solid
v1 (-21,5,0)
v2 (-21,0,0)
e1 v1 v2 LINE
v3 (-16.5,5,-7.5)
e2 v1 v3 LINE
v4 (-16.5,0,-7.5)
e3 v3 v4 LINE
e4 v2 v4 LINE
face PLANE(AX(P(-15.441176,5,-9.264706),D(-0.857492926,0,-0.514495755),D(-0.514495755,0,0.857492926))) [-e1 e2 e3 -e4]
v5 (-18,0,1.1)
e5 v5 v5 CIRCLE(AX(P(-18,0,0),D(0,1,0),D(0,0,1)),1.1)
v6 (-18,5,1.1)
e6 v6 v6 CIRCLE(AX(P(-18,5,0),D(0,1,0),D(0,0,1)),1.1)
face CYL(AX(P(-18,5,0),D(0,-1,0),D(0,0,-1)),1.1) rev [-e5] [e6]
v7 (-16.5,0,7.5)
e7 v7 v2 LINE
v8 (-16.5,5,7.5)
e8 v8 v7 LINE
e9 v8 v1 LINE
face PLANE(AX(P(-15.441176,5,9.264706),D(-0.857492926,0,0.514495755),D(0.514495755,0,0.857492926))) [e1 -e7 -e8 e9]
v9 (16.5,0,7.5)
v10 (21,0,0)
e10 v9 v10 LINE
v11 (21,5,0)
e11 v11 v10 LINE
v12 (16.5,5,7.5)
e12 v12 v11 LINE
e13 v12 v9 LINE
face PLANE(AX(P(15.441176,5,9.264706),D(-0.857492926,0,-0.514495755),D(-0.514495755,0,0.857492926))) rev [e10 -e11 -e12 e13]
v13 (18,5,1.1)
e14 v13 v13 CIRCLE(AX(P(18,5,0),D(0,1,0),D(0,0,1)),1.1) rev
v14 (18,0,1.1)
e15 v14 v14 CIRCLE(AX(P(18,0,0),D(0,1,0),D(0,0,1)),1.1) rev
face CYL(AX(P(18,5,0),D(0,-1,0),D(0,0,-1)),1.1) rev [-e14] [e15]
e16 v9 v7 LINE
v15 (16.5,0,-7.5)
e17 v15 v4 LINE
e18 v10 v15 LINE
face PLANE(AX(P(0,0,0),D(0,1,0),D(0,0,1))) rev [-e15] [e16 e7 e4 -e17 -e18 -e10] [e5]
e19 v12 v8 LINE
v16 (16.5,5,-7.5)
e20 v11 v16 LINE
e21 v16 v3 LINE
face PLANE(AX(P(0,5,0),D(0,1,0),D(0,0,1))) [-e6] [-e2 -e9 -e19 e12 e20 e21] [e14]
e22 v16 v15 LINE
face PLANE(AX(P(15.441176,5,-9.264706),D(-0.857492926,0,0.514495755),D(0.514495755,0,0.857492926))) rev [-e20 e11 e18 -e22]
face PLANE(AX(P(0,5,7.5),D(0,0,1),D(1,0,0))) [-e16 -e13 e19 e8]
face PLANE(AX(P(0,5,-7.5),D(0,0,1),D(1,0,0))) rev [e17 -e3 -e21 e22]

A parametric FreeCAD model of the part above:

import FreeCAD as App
import Part
import Sketcher


def add_polygon(sketch, points):
    """Adds a closed chain of lines whose ends are joined by coincident constraints."""
    first, n = sketch.GeometryCount, len(points)
    for a, b in zip(points, points[1:] + points[:1]):
        sketch.addGeometry(Part.LineSegment(App.Vector(*a, 0), App.Vector(*b, 0)), False)
    for i in range(n):
        sketch.addConstraint(Sketcher.Constraint("Coincident", first + i, 2, first + (i + 1) % n, 1))

doc = App.newDocument("Part")
params = doc.addObject("Spreadsheet::Sheet", "Params")
for row, (alias, value) in enumerate([
    ("sketch1_diameter", "2.2 mm"),
    ("sketch1_width", "33 mm"),
    ("pad1_length", "5 mm"),
], start=1):
    params.set(f"A{row}", alias)
    params.set(f"B{row}", "=" + value)
    params.setAlias(f"B{row}", alias)

body = doc.addObject("PartDesign::Body", "Body")

# Sketch on XZ plane
sketch1 = body.newObject("Sketcher::SketchObject", "Sketch")
sketch1.AttachmentSupport = (doc.getObject("XZ_Plane"), [""])
sketch1.MapMode = "FlatFace"
add_polygon(sketch1, [(-16.5, 7.5), (16.5, 7.5), (21, 0), (16.5, -7.5), (-16.5, -7.5), (-21, 0)])  # lines 0-5
sketch1.addGeometry(Part.Circle(App.Vector(-18, 0, 0), App.Vector(0, 0, 1), 1.1), False)  # 6
sketch1.addGeometry(Part.Circle(App.Vector(18, 0, 0), App.Vector(0, 0, 1), 1.1), False)  # 7
sketch1.addConstraint([
    Sketcher.Constraint("Horizontal", 0),
    Sketcher.Constraint("Horizontal", 3),
    Sketcher.Constraint("Equal", 6, 7),
    Sketcher.Constraint("Symmetric", 6, 3, 7, 3, -1, 1),
    Sketcher.Constraint("Symmetric", 0, 2, 3, 2, -1, 1),
    Sketcher.Constraint("Symmetric", 1, 2, 4, 2, -1, 1),
    Sketcher.Constraint("PointOnObject", 6, 3, -1),
    Sketcher.Constraint("PointOnObject", 1, 2, -1),
    Sketcher.Constraint("Parallel", 2, 5),
    Sketcher.Constraint("Vertical", 0, 2, 2, 2),
    Sketcher.Constraint("Diameter", 6, 2.2),
    Sketcher.Constraint("DistanceX", 0, 1, 0, 2, 33.0),
    Sketcher.Constraint("DistanceX", 6, 3, -1, 1, 18.0),
    Sketcher.Constraint("DistanceX", -1, 1, 1, 2, 21.0),
    Sketcher.Constraint("DistanceY", 2, 2, 0, 2, 15.0),
])
sketch1.setExpression("Constraints[16]", "Params.sketch1_diameter")
sketch1.setExpression("Constraints[17]", "Params.sketch1_width")
pad1 = body.newObject("PartDesign::Pad", "Pad")
pad1.Profile = sketch1
pad1.setExpression("Length", "Params.pad1_length")
pad1.Reversed = True

doc.recompute()
